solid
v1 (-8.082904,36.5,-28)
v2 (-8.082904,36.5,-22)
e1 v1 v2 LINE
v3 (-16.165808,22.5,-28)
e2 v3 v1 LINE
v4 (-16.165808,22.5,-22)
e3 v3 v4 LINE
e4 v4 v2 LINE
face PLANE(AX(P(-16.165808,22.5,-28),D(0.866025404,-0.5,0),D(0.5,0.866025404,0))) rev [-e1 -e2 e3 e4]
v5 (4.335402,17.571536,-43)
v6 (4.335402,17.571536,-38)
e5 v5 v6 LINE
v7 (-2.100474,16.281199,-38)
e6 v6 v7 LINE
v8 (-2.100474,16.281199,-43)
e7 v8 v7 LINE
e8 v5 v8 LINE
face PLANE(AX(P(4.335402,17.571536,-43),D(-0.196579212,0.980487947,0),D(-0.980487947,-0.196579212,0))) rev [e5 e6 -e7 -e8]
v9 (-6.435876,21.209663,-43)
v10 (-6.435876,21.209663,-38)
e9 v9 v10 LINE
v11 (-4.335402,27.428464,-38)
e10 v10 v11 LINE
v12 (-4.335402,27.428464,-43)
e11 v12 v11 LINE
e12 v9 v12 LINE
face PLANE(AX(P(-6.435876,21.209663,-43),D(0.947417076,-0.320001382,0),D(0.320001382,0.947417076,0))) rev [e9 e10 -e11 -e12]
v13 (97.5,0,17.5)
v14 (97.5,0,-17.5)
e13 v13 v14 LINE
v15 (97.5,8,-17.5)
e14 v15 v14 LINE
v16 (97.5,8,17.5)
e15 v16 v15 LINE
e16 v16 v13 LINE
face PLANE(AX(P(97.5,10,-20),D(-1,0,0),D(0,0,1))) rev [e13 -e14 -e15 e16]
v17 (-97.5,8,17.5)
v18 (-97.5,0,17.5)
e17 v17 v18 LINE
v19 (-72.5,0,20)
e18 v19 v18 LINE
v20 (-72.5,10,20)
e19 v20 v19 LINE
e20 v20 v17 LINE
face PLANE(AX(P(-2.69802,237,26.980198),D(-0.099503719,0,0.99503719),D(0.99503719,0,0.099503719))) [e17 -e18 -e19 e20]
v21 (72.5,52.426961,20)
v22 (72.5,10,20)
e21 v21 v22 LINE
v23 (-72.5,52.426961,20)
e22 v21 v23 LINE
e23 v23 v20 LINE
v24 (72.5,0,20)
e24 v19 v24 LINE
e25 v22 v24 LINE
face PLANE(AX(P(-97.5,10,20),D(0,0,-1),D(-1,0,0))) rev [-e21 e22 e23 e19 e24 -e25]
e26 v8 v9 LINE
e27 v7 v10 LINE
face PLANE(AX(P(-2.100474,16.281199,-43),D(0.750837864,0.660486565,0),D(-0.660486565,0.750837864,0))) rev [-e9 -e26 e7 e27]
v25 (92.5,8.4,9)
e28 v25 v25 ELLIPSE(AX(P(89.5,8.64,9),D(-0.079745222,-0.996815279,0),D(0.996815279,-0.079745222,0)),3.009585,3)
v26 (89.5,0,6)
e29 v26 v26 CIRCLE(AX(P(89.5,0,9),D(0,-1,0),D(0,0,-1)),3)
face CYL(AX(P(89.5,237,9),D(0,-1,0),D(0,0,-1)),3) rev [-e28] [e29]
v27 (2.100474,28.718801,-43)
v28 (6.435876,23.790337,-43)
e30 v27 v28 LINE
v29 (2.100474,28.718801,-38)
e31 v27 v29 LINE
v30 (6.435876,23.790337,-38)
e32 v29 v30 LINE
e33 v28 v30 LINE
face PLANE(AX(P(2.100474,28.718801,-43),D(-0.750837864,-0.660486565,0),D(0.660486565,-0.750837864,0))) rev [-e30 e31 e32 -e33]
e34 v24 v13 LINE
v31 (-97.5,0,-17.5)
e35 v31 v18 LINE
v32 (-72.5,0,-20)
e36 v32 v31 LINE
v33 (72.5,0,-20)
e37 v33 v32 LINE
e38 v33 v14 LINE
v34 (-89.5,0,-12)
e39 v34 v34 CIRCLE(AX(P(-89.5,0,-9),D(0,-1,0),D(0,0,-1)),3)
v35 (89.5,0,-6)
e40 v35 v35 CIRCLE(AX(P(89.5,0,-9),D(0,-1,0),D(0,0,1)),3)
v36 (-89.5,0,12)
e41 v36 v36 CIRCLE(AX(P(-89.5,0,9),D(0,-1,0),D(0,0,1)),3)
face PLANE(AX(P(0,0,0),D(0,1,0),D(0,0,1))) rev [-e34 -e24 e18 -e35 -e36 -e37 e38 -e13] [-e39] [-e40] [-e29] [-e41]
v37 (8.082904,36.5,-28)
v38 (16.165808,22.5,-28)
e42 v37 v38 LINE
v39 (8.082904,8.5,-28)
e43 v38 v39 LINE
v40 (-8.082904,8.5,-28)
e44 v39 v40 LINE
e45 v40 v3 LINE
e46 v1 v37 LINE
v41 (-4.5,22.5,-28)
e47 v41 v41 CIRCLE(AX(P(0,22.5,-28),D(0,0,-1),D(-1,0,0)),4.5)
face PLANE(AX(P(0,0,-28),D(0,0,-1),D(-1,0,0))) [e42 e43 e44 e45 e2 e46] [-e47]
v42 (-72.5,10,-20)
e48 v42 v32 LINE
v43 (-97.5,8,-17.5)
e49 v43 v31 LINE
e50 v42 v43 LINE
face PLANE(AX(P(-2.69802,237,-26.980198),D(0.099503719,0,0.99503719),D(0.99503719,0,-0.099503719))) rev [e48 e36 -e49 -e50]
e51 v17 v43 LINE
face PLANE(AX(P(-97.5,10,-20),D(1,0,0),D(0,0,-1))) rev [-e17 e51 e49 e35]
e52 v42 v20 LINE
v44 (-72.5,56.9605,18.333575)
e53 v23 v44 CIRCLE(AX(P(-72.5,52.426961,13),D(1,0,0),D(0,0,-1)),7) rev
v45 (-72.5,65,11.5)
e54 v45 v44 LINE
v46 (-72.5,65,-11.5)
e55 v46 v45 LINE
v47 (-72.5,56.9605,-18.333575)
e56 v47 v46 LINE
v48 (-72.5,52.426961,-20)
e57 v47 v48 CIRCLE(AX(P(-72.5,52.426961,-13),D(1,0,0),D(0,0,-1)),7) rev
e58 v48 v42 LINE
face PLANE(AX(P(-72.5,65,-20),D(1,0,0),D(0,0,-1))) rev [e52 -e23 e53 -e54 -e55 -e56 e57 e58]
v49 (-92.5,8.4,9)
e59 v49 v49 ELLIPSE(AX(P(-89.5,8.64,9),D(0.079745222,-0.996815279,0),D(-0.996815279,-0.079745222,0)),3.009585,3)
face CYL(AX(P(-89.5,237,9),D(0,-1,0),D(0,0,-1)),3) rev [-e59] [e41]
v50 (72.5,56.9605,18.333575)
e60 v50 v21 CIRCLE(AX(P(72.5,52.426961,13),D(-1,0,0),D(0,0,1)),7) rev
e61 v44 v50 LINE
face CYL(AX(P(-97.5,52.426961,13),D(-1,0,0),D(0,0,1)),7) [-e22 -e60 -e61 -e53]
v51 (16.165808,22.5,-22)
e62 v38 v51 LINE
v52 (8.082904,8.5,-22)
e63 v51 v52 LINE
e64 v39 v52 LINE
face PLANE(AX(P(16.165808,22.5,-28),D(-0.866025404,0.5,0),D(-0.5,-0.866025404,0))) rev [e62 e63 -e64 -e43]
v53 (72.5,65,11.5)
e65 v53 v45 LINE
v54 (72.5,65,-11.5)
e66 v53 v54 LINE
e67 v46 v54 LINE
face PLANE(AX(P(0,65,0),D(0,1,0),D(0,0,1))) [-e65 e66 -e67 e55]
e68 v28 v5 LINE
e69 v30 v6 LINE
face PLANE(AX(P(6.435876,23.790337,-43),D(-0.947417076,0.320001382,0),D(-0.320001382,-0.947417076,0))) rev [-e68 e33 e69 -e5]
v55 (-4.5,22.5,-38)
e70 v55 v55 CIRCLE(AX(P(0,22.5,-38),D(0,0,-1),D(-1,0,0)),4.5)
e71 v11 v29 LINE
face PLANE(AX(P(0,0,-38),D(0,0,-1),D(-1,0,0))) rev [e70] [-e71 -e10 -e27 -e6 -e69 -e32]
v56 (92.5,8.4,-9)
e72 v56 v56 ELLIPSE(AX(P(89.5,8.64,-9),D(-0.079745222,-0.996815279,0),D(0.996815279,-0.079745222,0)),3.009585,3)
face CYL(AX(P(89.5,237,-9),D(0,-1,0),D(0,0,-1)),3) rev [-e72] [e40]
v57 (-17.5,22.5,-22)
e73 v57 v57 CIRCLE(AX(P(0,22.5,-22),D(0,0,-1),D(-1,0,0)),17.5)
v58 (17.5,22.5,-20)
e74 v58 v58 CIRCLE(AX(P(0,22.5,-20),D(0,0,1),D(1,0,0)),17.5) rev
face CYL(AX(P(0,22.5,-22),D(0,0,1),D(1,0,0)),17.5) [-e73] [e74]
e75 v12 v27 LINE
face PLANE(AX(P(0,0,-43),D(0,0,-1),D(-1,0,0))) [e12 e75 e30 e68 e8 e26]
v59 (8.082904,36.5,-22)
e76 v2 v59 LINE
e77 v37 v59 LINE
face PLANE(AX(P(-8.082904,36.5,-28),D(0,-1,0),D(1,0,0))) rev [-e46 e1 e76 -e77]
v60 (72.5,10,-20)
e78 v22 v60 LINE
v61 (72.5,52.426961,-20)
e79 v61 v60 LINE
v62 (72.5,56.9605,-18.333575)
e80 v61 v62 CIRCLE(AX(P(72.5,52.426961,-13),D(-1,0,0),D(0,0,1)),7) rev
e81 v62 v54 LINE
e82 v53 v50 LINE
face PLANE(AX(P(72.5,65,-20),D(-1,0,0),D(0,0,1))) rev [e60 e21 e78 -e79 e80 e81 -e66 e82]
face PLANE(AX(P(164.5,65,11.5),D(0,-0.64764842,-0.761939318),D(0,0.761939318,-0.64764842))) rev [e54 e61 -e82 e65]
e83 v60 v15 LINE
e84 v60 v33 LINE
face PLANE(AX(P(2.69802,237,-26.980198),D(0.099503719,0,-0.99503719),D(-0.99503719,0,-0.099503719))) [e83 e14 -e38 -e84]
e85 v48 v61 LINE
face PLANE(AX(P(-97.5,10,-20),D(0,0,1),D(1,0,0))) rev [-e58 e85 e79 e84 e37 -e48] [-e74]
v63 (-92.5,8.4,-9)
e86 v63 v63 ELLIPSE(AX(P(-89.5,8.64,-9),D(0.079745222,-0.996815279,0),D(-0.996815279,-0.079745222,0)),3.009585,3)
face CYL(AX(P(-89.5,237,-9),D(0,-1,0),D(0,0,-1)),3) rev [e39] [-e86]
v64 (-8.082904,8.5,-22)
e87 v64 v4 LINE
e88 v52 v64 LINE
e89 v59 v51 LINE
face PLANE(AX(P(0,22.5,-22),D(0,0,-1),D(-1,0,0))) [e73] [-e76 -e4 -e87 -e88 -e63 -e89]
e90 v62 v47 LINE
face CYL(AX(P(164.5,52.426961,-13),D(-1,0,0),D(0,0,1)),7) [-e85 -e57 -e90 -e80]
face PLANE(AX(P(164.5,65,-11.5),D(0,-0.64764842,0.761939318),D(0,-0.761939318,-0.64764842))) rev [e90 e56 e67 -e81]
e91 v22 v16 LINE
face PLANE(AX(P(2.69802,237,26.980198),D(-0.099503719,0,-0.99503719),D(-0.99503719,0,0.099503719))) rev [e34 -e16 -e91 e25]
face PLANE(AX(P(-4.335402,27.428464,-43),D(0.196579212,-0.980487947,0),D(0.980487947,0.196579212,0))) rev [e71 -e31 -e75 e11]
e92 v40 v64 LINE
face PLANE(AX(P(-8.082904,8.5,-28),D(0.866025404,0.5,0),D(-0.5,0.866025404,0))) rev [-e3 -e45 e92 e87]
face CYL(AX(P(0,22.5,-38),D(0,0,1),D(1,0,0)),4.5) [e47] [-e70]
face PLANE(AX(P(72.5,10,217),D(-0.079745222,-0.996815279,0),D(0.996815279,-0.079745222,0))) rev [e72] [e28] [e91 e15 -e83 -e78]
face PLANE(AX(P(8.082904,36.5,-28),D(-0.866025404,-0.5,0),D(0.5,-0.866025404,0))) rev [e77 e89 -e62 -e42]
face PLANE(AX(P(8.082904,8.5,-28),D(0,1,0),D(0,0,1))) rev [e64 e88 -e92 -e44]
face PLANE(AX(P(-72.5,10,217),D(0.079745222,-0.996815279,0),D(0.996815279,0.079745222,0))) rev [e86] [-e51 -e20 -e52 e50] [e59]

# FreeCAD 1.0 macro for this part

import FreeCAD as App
import Part
import Sketcher

V = App.Vector
Q = App.Units.Quantity


def edges_at(feature, points):
    """Names of the edges that pass closest to the given points."""
    edges = feature.Shape.Edges
    near = lambda p: min(range(len(edges)), key=lambda i: edges[i].distToShape(Part.Vertex(*p))[0])
    return sorted({f"Edge{near(p) + 1}" for p in points})


def add_polygon(sketch, points):
    """Adds a closed chain of lines whose ends are joined by coincident constraints."""
    first, n = sketch.GeometryCount, len(points)
    for a, b in zip(points, points[1:] + points[:1]):
        sketch.addGeometry(Part.LineSegment(App.Vector(*a, 0), App.Vector(*b, 0)), False)
    for i in range(n):
        sketch.addConstraint(Sketcher.Constraint("Coincident", first + i, 2, first + (i + 1) % n, 1))

doc = App.newDocument("Part")
body = doc.addObject("PartDesign::Body", "Body")

sketch1 = doc.addObject("Sketcher::SketchObject", "Sketch")
body.addObject(sketch1)
sketch1.AttachmentSupport = (doc.XZ_Plane, [""])
sketch1.MapMode = "FlatFace"
add_polygon(sketch1, [(-98, -20), (-98, 20), (98, 20), (98, -20)])
sketch1.addConstraint([
    Sketcher.Constraint("Vertical", 0),
    Sketcher.Constraint("Horizontal", 1),
    Sketcher.Constraint("Vertical", 2),
    Sketcher.Constraint("Horizontal", 3),
    Sketcher.Constraint("Symmetric", 0, 2, 2, 2, -1, 1),
    Sketcher.Constraint("DistanceX", 1, 1, 1, 2, 195.0),
    Sketcher.Constraint("DistanceY", 0, 1, 0, 2, 40.0),
])
pad1 = doc.addObject("PartDesign::Pad", "Pad")
body.addObject(pad1)
pad1.Profile = sketch1
pad1.Length = 10
pad1.Reversed = True

sketch2 = doc.addObject("Sketcher::SketchObject", "Sketch001")
body.addObject(sketch2)
sketch2.AttachmentSupport = (doc.XZ_Plane, [""])
sketch2.MapMode = "FlatFace"
sketch2.AttachmentOffset = App.Placement(V(0, 0, -10), App.Rotation())
add_polygon(sketch2, [(-72, -20), (-72, 20), (72, 20), (72, -20)])
sketch2.addConstraint([
    Sketcher.Constraint("Vertical", 0),
    Sketcher.Constraint("Horizontal", 1),
    Sketcher.Constraint("Vertical", 2),
    Sketcher.Constraint("Horizontal", 3),
    Sketcher.Constraint("Symmetric", 0, 2, 2, 2, -1, 1),
    Sketcher.Constraint("DistanceX", 1, 1, 1, 2, 145.0),
    Sketcher.Constraint("DistanceY", 0, 1, 0, 2, 40.0),
])
pad2 = doc.addObject("PartDesign::Pad", "Pad001")
body.addObject(pad2)
pad2.Profile = sketch2
pad2.Length = 55
pad2.Reversed = True

sketch3 = doc.addObject("Sketcher::SketchObject", "Sketch002")
body.addObject(sketch3)
sketch3.AttachmentSupport = (doc.YZ_Plane, [""])
sketch3.MapMode = "FlatFace"
sketch3.AttachmentOffset = App.Placement(V(0, 0, -72.5), App.Rotation())
add_polygon(sketch3, [(55, -20), (65, -12), (69, -20)])
add_polygon(sketch3, [(65, 12), (55, 20), (69, 20)])
sketch3.addConstraint([
    Sketcher.Constraint("Horizontal", 2),
    Sketcher.Constraint("Horizontal", 4),
    Sketcher.Constraint("Symmetric", 2, 2, 3, 2, -1),
    Sketcher.Constraint("Symmetric", 0, 2, 5, 2, -1),
    Sketcher.Constraint("Vertical", 1, 2, 4, 2),
    Sketcher.Constraint("DistanceX", -1, 1, 0, 2, 65.0),
    Sketcher.Constraint("DistanceY", 1, 2, -1, 1, 20.0),
    Sketcher.Constraint("DistanceX", -1, 1, 2, 2, 55.0),
    Sketcher.Constraint("DistanceY", 0, 2, 5, 2, 23.0),
    Sketcher.Constraint("Distance", 1, 9.247618),
])
pocket1 = doc.addObject("PartDesign::Pocket", "Pocket")
body.addObject(pocket1)
pocket1.Profile = sketch3
pocket1.Length = 237
pocket1.Reversed = True
doc.recompute()

fillet = doc.addObject("PartDesign::Fillet", "Fillet")
body.addObject(fillet)
fillet.Base = (pocket1, edges_at(pocket1, [(0, 55, -20), (0, 55, 20)]))
fillet.Radius = 7

sketch4 = doc.addObject("Sketcher::SketchObject", "Sketch003")
body.addObject(sketch4)
sketch4.AttachmentSupport = (doc.XY_Plane, [""])
sketch4.MapMode = "FlatFace"
sketch4.AttachmentOffset = App.Placement(V(0, 0, -20), App.Rotation())
add_polygon(sketch4, [(-72.5, 10), (-97.5, 8), (-97.5, 10)])
add_polygon(sketch4, [(72.5, 10), (97.5, 10), (97.5, 8)])
sketch4.addConstraint([
    Sketcher.Constraint("Vertical", 1),
    Sketcher.Constraint("Horizontal", 2),
    Sketcher.Constraint("Horizontal", 3),
    Sketcher.Constraint("Vertical", 4),
    Sketcher.Constraint("Symmetric", 1, 2, 3, 2, -2),
    Sketcher.Constraint("Horizontal", 0, 2, 4, 2),
    Sketcher.Constraint("Equal", 2, 3),
    Sketcher.Constraint("DistanceX", 2, 1, 2, 2, 25.0),
    Sketcher.Constraint("DistanceY", 1, 1, 1, 2, 2.0),
    Sketcher.Constraint("DistanceY", -1, 1, 0, 2, 8.0),
    Sketcher.Constraint("DistanceX", 2, 2, 3, 2, 170.0),
])
pocket2 = doc.addObject("PartDesign::Pocket", "Pocket001")
body.addObject(pocket2)
pocket2.Profile = sketch4
pocket2.Length = 237
pocket2.Reversed = True

sketch5 = doc.addObject("Sketcher::SketchObject", "Sketch004")
body.addObject(sketch5)
sketch5.AttachmentSupport = (doc.XZ_Plane, [""])
sketch5.MapMode = "FlatFace"
add_polygon(sketch5, [(97.5, -20), (97.5, -17.5), (72.5, -20)])
add_polygon(sketch5, [(97.5, 20), (72.5, 20), (97.5, 17.5)])
add_polygon(sketch5, [(-97.5, 17.5), (-72.5, 20), (-97.5, 20)])
add_polygon(sketch5, [(-72.5, -20), (-97.5, -17.5), (-97.5, -20)])
sketch5.addConstraint([
    Sketcher.Constraint("Vertical", 0),
    Sketcher.Constraint("Horizontal", 2),
    Sketcher.Constraint("Horizontal", 3),
    Sketcher.Constraint("Vertical", 5),
    Sketcher.Constraint("Horizontal", 7),
    Sketcher.Constraint("Vertical", 8),
    Sketcher.Constraint("Vertical", 10),
    Sketcher.Constraint("Horizontal", 11),
    Sketcher.Constraint("Symmetric", 1, 2, 6, 2, -1, 1),
    Sketcher.Constraint("Symmetric", 0, 2, 8, 2, -1, 1),
    Sketcher.Constraint("Symmetric", 4, 2, 9, 2, -1, 1),
    Sketcher.Constraint("Symmetric", 3, 2, 11, 2, -1, 1),
    Sketcher.Constraint("Symmetric", 3, 2, 6, 2, -2),
    Sketcher.Constraint("Symmetric", 4, 2, 8, 2, -2),
    Sketcher.Constraint("DistanceX", 2, 1, 2, 2, 25.0),
    Sketcher.Constraint("DistanceY", 0, 1, 0, 2, 2.5),
    Sketcher.Constraint("DistanceY", 1, 2, -1, 1, 20.0),
    Sketcher.Constraint("DistanceX", 6, 2, 3, 2, 145.0),
])
pocket3 = doc.addObject("PartDesign::Pocket", "Pocket002")
body.addObject(pocket3)
pocket3.Profile = sketch5
pocket3.Length = 237

sketch6 = doc.addObject("Sketcher::SketchObject", "Sketch005")
body.addObject(sketch6)
sketch6.AttachmentSupport = (doc.XZ_Plane, [""])
sketch6.MapMode = "FlatFace"
sketch6.addGeometry([
    Part.Circle(V(89.5, 9, 0), V(0, 0, 1), 3),
    Part.Circle(V(89.5, -9, 0), V(0, 0, 1), 3),
    Part.Circle(V(-89.5, 9, 0), V(0, 0, 1), 3),
    Part.Circle(V(-89.5, -9, 0), V(0, 0, 1), 3),
], False)
sketch6.addConstraint([
    Sketcher.Constraint("Equal", 0, 1),
    Sketcher.Constraint("Equal", 1, 2),
    Sketcher.Constraint("Equal", 2, 3),
    Sketcher.Constraint("Symmetric", 1, 3, 2, 3, -1, 1),
    Sketcher.Constraint("Symmetric", 0, 3, 3, 3, -1, 1),
    Sketcher.Constraint("Symmetric", 0, 3, 2, 3, -2),
    Sketcher.Constraint("Diameter", 0, 6.0),
    Sketcher.Constraint("DistanceY", -1, 1, 0, 3, 9.0),
    Sketcher.Constraint("DistanceX", 2, 3, 0, 3, 179.0),
])
pocket4 = doc.addObject("PartDesign::Pocket", "Pocket003")
body.addObject(pocket4)
pocket4.Profile = sketch6
pocket4.Length = 237

sketch7 = doc.addObject("Sketcher::SketchObject", "Sketch006")
body.addObject(sketch7)
sketch7.AttachmentSupport = (doc.XY_Plane, [""])
sketch7.MapMode = "FlatFace"
sketch7.AttachmentOffset = App.Placement(V(0, 0, -20), App.Rotation())
sketch7.addGeometry(Part.Circle(V(0, 22, 0), V(0, 0, 1), 18), False)
sketch7.addConstraint([
    Sketcher.Constraint("PointOnObject", 0, 3, -2),
    Sketcher.Constraint("Diameter", 0, 35.0),
    Sketcher.Constraint("DistanceY", -1, 1, 0, 3, 22.5),
])
pad3 = doc.addObject("PartDesign::Pad", "Pad002")
body.addObject(pad3)
pad3.Profile = sketch7
pad3.Length = 2
pad3.Reversed = True

sketch8 = doc.addObject("Sketcher::SketchObject", "Sketch007")
body.addObject(sketch8)
sketch8.AttachmentSupport = (doc.XY_Plane, [""])
sketch8.MapMode = "FlatFace"
sketch8.AttachmentOffset = App.Placement(V(0, 0, -22), App.Rotation())
add_polygon(sketch8, [(-8, 8), (-16, 22), (-8, 36), (8, 36), (16, 22), (8, 8)])
sketch8.addConstraint([
    Sketcher.Constraint("Horizontal", 2),
    Sketcher.Constraint("Horizontal", 5),
    Sketcher.Constraint("Symmetric", 0, 2, 3, 2, -2),
    Sketcher.Constraint("Parallel", 0, 3),
    Sketcher.Constraint("Parallel", 1, 4),
    Sketcher.Constraint("Vertical", 2, 2, 4, 2),
    Sketcher.Constraint("Vertical", 1, 2, 5, 2),
    Sketcher.Constraint("Angle", 0, Q("120 deg")),
    Sketcher.Constraint("DistanceY", 0, 2, 1, 2, 14.0),
    Sketcher.Constraint("DistanceY", -1, 1, 0, 2, 22.5),
    Sketcher.Constraint("DistanceX", 2, 1, 2, 2, 16.165808),
])
pad4 = doc.addObject("PartDesign::Pad", "Pad003")
body.addObject(pad4)
pad4.Profile = sketch8
pad4.Length = 6
pad4.Reversed = True

sketch9 = doc.addObject("Sketcher::SketchObject", "Sketch008")
body.addObject(sketch9)
sketch9.AttachmentSupport = (doc.XY_Plane, [""])
sketch9.MapMode = "FlatFace"
sketch9.AttachmentOffset = App.Placement(V(0, 0, -28), App.Rotation())
sketch9.addGeometry(Part.Circle(V(0, 22.5, 0), V(0, 0, 1), 4.5), False)
sketch9.addConstraint([
    Sketcher.Constraint("PointOnObject", 0, 3, -2),
    Sketcher.Constraint("Diameter", 0, 9.0),
    Sketcher.Constraint("DistanceY", -1, 1, 0, 3, 22.5),
])
pad5 = doc.addObject("PartDesign::Pad", "Pad004")
body.addObject(pad5)
pad5.Profile = sketch9
pad5.Length = 10
pad5.Reversed = True

sketch10 = doc.addObject("Sketcher::SketchObject", "Sketch009")
body.addObject(sketch10)
sketch10.AttachmentSupport = (doc.XY_Plane, [""])
sketch10.MapMode = "FlatFace"
sketch10.AttachmentOffset = App.Placement(V(0, 0, -38), App.Rotation())
add_polygon(sketch10, [(-2, 16), (-6, 21), (-4, 27), (2, 29), (6, 24), (4, 18)])
sketch10.addConstraint([
    Sketcher.Constraint("Parallel", 0, 3),
    Sketcher.Constraint("Parallel", 1, 4),
    Sketcher.Constraint("Parallel", 2, 5),
    Sketcher.Constraint("Equal", 0, 1),
    Sketcher.Constraint("Equal", 1, 2),
    Sketcher.Constraint("Equal", 2, 3),
    Sketcher.Constraint("DistanceY", -1, 1, 2, 2, 28.718801),
    Sketcher.Constraint("DistanceY", -1, 1, 5, 2, 16.281199),
    Sketcher.Constraint("DistanceY", 0, 2, 1, 2, 6.218801),
    Sketcher.Constraint("DistanceX", 0, 2, 2, 2, 8.53635),
    Sketcher.Constraint("DistanceX", 1, 2, 3, 2, 10.771279),
    Sketcher.Constraint("DistanceX", 0, 2, -1, 1, 6.435876),
])
pad6 = doc.addObject("PartDesign::Pad", "Pad005")
body.addObject(pad6)
pad6.Profile = sketch10
pad6.Length = 5
pad6.Reversed = True

doc.recompute()
